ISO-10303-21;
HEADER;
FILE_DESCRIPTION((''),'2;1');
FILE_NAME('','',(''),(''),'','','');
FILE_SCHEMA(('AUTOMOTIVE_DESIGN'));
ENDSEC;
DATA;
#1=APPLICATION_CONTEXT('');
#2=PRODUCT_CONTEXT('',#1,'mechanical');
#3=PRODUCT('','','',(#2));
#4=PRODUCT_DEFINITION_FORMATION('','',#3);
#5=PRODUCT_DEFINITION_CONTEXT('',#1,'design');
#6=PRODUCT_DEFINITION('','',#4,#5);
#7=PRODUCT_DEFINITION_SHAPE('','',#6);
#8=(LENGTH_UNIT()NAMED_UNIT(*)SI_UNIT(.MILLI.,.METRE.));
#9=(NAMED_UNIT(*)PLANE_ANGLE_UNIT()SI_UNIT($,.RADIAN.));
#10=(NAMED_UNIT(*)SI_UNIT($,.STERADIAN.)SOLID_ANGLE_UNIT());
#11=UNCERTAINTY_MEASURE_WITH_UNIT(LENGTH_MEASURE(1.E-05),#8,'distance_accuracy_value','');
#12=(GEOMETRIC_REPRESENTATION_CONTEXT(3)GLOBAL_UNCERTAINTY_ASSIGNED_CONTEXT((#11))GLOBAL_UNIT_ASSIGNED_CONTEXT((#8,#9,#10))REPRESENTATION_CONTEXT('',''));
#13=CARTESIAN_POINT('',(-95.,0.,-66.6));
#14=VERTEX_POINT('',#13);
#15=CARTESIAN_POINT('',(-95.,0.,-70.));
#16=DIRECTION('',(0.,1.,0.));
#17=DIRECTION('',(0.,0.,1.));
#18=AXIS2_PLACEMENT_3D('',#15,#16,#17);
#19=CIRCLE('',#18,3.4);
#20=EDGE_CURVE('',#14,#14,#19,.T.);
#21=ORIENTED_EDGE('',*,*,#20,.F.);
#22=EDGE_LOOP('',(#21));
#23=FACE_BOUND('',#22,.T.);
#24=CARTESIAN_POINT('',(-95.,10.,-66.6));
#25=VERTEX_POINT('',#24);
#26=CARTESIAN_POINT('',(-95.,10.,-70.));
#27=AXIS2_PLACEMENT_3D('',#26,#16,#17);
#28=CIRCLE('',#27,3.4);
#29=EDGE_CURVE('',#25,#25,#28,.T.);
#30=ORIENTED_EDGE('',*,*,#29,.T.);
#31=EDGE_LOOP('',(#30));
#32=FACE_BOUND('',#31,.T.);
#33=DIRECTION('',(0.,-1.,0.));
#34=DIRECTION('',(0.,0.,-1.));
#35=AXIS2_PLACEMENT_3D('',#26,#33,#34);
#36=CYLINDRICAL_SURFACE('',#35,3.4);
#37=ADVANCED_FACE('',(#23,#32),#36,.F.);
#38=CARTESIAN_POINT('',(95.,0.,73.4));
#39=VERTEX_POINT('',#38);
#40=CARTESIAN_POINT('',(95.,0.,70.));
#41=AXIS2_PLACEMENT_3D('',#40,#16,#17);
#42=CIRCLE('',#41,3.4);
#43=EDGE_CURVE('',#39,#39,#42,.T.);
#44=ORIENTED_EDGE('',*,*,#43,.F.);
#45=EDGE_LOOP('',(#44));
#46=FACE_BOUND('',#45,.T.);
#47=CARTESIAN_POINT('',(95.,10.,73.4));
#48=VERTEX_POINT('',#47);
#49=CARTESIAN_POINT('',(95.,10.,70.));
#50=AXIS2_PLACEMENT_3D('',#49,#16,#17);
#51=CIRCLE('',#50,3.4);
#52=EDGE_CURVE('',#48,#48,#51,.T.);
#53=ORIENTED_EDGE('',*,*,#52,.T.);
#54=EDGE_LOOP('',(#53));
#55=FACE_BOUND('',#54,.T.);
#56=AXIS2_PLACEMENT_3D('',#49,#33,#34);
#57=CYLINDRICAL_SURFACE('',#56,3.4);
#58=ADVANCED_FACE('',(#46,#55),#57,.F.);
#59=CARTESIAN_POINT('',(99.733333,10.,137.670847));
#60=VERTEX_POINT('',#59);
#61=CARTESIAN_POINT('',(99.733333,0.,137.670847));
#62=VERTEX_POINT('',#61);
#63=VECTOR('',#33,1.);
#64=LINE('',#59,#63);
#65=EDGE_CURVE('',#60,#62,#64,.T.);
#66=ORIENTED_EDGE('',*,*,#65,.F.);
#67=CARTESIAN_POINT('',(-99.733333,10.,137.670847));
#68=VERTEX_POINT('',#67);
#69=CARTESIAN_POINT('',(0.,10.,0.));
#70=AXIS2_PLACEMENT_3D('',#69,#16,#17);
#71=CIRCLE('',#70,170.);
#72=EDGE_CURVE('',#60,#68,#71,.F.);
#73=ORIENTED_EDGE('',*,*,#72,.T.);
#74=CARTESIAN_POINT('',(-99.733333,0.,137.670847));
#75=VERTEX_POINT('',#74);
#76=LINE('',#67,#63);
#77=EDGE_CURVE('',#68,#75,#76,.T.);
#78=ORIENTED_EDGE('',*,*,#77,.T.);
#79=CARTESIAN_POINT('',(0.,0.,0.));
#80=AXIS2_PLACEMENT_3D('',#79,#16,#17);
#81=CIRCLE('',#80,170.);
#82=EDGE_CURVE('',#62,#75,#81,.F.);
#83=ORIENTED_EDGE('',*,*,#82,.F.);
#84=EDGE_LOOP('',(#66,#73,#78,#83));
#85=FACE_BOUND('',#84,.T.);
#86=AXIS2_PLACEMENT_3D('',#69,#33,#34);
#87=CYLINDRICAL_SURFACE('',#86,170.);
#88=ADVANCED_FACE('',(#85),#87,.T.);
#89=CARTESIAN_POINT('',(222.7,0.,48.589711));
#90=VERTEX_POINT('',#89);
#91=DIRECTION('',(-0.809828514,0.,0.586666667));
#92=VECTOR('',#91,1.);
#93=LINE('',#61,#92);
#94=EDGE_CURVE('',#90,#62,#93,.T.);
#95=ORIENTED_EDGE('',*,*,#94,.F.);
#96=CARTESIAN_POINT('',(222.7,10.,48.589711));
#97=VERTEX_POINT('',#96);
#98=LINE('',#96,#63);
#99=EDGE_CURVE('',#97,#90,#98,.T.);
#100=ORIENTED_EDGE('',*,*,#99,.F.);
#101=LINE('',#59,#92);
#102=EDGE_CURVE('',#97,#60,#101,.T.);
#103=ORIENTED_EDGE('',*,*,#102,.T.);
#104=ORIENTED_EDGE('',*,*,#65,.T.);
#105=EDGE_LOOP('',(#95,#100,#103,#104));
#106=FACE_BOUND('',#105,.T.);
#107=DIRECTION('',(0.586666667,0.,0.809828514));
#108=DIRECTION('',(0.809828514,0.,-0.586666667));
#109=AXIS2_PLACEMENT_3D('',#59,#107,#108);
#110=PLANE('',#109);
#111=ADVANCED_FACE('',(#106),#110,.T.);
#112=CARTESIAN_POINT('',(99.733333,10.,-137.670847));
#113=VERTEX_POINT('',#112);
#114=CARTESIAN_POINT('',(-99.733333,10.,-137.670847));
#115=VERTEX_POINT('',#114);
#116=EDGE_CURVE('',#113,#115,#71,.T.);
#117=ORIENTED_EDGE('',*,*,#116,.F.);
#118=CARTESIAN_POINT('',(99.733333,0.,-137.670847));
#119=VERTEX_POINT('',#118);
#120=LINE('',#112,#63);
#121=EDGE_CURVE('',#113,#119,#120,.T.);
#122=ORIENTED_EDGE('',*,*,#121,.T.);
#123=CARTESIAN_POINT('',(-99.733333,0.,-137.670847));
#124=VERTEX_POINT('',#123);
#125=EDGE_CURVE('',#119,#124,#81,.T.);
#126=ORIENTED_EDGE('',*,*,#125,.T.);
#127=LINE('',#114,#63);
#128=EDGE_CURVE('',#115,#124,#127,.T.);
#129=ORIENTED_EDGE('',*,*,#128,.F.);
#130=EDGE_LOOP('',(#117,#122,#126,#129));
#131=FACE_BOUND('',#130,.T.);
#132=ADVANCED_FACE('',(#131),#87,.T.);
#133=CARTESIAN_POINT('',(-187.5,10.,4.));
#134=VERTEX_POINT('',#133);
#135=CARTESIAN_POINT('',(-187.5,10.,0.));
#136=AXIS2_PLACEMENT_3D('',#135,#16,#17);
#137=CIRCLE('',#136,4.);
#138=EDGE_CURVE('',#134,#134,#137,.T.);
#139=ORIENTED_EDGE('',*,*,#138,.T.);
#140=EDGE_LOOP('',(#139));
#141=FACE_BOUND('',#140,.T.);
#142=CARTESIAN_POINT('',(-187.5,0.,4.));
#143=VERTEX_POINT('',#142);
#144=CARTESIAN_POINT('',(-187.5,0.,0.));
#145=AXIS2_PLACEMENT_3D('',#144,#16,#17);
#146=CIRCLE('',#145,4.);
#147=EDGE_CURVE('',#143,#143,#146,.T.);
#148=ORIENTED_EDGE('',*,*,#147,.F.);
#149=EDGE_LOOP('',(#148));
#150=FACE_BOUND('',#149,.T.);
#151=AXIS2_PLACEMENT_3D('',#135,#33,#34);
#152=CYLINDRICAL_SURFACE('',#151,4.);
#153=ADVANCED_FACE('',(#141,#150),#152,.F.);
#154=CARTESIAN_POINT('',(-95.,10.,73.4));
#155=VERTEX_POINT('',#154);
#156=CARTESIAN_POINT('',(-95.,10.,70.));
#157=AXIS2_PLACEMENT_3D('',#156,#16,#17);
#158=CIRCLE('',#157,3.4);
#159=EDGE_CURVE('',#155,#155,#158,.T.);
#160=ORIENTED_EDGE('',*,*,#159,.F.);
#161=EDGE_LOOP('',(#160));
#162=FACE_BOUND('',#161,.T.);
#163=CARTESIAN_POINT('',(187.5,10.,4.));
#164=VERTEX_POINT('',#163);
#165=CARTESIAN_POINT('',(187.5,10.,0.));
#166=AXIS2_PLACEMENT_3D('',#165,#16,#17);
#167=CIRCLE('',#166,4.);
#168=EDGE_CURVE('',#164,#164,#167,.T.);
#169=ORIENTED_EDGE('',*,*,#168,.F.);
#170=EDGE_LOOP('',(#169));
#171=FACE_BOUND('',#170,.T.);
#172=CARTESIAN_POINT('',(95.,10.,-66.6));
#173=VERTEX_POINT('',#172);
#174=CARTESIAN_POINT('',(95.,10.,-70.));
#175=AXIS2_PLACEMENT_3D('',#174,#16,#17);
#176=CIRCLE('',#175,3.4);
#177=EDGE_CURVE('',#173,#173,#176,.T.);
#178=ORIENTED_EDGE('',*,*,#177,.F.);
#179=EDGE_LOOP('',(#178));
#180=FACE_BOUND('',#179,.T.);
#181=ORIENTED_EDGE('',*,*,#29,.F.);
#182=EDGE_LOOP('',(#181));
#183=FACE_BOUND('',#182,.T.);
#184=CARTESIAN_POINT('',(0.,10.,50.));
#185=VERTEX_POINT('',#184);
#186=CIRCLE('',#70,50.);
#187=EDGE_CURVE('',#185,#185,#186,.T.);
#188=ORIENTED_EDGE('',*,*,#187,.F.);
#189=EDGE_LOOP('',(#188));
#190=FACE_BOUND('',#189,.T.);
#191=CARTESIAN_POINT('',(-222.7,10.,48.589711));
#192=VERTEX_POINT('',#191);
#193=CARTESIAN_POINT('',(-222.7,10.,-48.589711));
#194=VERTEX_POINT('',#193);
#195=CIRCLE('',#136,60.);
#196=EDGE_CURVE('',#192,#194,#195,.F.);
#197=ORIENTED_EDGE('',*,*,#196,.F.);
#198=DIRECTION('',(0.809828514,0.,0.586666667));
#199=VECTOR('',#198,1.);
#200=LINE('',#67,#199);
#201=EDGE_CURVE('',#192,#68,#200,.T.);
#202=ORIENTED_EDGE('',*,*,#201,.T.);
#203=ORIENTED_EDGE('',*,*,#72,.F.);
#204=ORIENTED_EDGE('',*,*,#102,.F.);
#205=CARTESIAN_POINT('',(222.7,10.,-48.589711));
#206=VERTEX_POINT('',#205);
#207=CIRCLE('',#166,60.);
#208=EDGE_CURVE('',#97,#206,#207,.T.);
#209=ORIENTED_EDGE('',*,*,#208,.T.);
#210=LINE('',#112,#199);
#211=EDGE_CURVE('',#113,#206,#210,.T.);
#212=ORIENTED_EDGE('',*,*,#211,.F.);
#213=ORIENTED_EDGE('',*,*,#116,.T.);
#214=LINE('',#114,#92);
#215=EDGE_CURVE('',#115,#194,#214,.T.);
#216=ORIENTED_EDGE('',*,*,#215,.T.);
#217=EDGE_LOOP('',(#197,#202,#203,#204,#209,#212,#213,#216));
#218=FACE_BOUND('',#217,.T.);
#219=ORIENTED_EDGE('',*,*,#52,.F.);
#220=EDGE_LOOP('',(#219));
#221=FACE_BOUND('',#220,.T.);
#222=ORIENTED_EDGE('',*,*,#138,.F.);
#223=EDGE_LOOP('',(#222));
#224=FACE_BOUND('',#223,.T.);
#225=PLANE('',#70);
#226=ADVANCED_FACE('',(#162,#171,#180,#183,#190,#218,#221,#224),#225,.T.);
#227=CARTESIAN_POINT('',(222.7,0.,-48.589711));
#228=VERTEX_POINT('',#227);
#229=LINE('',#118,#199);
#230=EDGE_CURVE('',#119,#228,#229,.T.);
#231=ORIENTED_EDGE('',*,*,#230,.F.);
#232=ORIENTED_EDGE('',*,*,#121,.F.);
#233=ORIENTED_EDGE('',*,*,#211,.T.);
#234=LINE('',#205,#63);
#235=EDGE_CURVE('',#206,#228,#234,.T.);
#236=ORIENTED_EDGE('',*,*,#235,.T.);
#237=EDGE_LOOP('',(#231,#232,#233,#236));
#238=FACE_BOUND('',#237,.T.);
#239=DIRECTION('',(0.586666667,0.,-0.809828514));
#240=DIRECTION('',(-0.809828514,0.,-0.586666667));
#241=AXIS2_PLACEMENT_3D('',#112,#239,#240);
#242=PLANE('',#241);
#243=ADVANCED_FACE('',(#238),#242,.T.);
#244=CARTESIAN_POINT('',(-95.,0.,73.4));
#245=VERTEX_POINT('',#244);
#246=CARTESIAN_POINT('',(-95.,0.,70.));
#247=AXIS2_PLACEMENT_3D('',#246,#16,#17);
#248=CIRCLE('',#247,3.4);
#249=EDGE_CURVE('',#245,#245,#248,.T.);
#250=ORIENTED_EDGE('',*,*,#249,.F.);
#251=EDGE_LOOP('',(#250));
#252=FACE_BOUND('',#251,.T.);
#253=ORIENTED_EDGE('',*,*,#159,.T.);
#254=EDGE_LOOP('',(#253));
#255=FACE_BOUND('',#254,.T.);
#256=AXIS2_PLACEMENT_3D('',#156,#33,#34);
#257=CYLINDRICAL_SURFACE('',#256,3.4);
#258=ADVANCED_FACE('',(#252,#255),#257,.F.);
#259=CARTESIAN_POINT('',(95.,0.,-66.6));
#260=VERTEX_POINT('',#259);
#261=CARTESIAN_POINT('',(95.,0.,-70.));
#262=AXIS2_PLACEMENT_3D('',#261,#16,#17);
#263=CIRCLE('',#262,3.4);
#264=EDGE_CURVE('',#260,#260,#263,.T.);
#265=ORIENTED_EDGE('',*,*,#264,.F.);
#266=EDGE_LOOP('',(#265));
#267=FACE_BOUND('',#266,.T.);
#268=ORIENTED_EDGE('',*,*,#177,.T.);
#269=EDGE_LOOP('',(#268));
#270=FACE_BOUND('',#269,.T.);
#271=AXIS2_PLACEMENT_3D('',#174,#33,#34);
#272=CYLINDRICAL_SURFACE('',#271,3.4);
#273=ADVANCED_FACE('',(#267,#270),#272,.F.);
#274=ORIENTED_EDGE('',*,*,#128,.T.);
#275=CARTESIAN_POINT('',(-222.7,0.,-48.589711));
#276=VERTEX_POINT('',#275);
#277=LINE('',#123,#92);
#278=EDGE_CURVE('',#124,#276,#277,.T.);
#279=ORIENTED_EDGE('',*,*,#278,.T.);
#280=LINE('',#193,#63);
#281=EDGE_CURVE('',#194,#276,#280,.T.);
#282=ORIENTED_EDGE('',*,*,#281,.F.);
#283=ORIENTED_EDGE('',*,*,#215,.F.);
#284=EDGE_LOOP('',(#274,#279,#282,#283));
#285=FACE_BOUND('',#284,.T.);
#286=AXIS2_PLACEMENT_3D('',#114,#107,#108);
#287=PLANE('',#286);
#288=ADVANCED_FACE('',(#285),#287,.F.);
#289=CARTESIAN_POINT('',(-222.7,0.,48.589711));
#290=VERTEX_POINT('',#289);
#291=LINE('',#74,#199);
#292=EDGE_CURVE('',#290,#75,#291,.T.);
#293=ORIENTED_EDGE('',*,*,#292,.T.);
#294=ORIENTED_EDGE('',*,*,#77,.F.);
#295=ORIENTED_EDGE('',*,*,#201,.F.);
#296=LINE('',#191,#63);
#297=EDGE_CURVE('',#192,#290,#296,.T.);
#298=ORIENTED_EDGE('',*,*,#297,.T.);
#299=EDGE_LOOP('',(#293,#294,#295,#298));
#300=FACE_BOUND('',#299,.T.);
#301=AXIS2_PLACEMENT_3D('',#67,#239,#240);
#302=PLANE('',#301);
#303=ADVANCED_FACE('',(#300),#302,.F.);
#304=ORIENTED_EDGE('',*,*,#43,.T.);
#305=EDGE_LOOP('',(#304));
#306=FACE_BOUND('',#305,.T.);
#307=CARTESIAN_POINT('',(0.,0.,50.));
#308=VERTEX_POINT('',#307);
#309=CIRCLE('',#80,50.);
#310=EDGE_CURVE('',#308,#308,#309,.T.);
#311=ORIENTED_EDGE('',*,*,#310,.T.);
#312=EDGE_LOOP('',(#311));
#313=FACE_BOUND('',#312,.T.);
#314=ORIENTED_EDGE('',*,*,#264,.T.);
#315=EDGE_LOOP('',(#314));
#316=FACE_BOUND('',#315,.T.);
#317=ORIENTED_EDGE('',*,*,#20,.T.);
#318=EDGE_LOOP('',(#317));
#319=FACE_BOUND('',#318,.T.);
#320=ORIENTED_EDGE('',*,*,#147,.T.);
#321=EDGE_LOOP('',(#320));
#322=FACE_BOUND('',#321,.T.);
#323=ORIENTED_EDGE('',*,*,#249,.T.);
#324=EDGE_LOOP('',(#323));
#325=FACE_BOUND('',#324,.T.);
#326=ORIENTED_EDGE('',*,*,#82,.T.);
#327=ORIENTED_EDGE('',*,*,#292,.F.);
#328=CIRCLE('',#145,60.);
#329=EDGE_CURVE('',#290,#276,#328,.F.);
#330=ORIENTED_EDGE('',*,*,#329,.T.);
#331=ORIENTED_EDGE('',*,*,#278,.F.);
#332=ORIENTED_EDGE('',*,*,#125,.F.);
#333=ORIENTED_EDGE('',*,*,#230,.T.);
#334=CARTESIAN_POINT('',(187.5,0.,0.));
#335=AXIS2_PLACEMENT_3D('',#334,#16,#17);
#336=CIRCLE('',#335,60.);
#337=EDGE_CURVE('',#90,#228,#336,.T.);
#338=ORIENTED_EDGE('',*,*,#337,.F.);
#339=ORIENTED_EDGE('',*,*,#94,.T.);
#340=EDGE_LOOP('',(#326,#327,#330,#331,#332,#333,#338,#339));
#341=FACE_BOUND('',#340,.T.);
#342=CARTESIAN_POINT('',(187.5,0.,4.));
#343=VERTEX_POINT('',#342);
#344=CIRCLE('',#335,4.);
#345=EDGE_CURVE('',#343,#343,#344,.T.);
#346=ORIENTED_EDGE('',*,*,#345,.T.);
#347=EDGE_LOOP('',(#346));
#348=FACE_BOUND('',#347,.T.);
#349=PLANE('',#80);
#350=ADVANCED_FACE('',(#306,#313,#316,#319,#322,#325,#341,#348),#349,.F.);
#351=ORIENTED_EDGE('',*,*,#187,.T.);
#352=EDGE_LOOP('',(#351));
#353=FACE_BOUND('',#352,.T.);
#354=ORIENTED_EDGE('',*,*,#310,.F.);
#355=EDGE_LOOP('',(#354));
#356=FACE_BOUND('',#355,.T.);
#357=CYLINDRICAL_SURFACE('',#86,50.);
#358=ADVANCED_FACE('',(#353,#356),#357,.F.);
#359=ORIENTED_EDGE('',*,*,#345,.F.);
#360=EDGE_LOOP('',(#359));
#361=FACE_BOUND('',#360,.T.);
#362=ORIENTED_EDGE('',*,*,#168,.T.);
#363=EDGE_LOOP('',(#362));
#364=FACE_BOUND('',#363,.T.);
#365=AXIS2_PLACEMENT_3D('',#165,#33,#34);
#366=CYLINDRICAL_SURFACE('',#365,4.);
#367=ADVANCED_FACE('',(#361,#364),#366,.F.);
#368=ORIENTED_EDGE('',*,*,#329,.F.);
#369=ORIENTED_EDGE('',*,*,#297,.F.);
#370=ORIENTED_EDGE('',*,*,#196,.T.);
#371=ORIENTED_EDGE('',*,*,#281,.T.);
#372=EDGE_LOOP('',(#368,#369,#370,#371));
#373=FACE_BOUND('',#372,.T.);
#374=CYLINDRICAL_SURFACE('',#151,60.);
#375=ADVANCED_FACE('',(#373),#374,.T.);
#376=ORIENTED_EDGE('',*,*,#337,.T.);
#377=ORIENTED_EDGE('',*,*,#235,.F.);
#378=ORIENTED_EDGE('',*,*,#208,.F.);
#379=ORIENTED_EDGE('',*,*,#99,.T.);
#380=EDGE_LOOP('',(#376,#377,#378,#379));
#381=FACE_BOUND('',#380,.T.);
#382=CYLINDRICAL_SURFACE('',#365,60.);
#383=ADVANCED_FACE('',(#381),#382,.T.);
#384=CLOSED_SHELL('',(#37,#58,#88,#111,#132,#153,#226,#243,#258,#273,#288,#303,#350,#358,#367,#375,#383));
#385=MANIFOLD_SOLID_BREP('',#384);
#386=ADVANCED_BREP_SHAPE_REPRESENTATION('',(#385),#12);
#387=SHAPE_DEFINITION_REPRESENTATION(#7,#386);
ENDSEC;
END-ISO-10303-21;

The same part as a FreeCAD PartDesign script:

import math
import FreeCAD as App
import Part
import Sketcher

doc = App.newDocument("Part")
body = doc.addObject("PartDesign::Body", "Body")

sketch1 = body.newObject("Sketcher::SketchObject", "Sketch")
sketch1.AttachmentSupport = (doc.getObject("XZ_Plane"), [""])
sketch1.MapMode = "FlatFace"
sketch1.addGeometry([
    Part.LineSegment(App.Vector(-99.733333, -137.670847, 0), App.Vector(-222.7, -48.589711, 0)),
    Part.ArcOfCircle(Part.Circle(App.Vector(-187.5, 0, 0), App.Vector(0, 0, 1), 60), math.radians(125.92082), math.radians(234.07918)),
    Part.LineSegment(App.Vector(-222.7, 48.589711, 0), App.Vector(-99.733333, 137.670847, 0)),
    Part.ArcOfCircle(Part.Circle(App.Vector(0, 0, 0), App.Vector(0, 0, 1), 170), math.radians(54.07918), math.radians(125.92082)),
    Part.LineSegment(App.Vector(99.733333, 137.670847, 0), App.Vector(222.7, 48.589711, 0)),
    Part.ArcOfCircle(Part.Circle(App.Vector(187.5, 0, 0), App.Vector(0, 0, 1), 60), math.radians(-54.07918), math.radians(54.07918)),
    Part.LineSegment(App.Vector(222.7, -48.589711, 0), App.Vector(99.733333, -137.670847, 0)),
    Part.ArcOfCircle(Part.Circle(App.Vector(0, 0, 0), App.Vector(0, 0, 1), 170), math.radians(-125.92082), math.radians(-54.07918)),
    Part.Circle(App.Vector(-95, 70, 0), App.Vector(0, 0, 1), 3.4),
    Part.Circle(App.Vector(95, 70, 0), App.Vector(0, 0, 1), 3.4),
    Part.Circle(App.Vector(-187.5, 0, 0), App.Vector(0, 0, 1), 4),
    Part.Circle(App.Vector(-95, -70, 0), App.Vector(0, 0, 1), 3.4),
    Part.Circle(App.Vector(0, 0, 0), App.Vector(0, 0, 1), 50),
    Part.Circle(App.Vector(187.5, 0, 0), App.Vector(0, 0, 1), 4),
    Part.Circle(App.Vector(95, -70, 0), App.Vector(0, 0, 1), 3.4),
], False)
sketch1.addConstraint([
    Sketcher.Constraint("Tangent", 0, 2, 1, 2),
    Sketcher.Constraint("Tangent", 1, 1, 2, 1),
    Sketcher.Constraint("Tangent", 2, 2, 3, 2),
    Sketcher.Constraint("Tangent", 3, 1, 4, 1),
    Sketcher.Constraint("Tangent", 4, 2, 5, 2),
    Sketcher.Constraint("Tangent", 5, 1, 6, 1),
    Sketcher.Constraint("Tangent", 6, 2, 7, 2),
    Sketcher.Constraint("Tangent", 7, 1, 0, 1),
    Sketcher.Constraint("Coincident", 3, 3, -1, 1),
    Sketcher.Constraint("Coincident", 7, 3, -1, 1),
    Sketcher.Constraint("Coincident", 12, 3, -1, 1),
    Sketcher.Constraint("Coincident", 10, 3, 1, 3),
    Sketcher.Constraint("Coincident", 13, 3, 5, 3),
    Sketcher.Constraint("Equal", 1, 5),
    Sketcher.Constraint("Equal", 3, 7),
    Sketcher.Constraint("Equal", 8, 9),
    Sketcher.Constraint("Equal", 9, 11),
    Sketcher.Constraint("Equal", 10, 13),
    Sketcher.Constraint("Equal", 11, 14),
    Sketcher.Constraint("Symmetric", 1, 3, 5, 3, -1, 1),
    Sketcher.Constraint("Symmetric", 9, 3, 11, 3, -1, 1),
    Sketcher.Constraint("Symmetric", 8, 3, 14, 3, -1, 1),
    Sketcher.Constraint("Symmetric", 8, 3, 9, 3, -2),
    Sketcher.Constraint("PointOnObject", 1, 3, -1),
    Sketcher.Constraint("Diameter", 10, 8.0),
    Sketcher.Constraint("Diameter", 12, 100.0),
    Sketcher.Constraint("Radius", 1, 60.0),
    Sketcher.Constraint("Radius", 3, 170.0),
    Sketcher.Constraint("Diameter", 8, 6.8),
    Sketcher.Constraint("DistanceX", 8, 3, -1, 1, 95.0),
    Sketcher.Constraint("DistanceY", -1, 1, 8, 3, 70.0),
    Sketcher.Constraint("DistanceX", 1, 3, 5, 3, 375.0),
])
pad1 = body.newObject("PartDesign::Pad", "Pad")
pad1.Profile = sketch1
pad1.Length = 10
pad1.Reversed = True

doc.recompute()
